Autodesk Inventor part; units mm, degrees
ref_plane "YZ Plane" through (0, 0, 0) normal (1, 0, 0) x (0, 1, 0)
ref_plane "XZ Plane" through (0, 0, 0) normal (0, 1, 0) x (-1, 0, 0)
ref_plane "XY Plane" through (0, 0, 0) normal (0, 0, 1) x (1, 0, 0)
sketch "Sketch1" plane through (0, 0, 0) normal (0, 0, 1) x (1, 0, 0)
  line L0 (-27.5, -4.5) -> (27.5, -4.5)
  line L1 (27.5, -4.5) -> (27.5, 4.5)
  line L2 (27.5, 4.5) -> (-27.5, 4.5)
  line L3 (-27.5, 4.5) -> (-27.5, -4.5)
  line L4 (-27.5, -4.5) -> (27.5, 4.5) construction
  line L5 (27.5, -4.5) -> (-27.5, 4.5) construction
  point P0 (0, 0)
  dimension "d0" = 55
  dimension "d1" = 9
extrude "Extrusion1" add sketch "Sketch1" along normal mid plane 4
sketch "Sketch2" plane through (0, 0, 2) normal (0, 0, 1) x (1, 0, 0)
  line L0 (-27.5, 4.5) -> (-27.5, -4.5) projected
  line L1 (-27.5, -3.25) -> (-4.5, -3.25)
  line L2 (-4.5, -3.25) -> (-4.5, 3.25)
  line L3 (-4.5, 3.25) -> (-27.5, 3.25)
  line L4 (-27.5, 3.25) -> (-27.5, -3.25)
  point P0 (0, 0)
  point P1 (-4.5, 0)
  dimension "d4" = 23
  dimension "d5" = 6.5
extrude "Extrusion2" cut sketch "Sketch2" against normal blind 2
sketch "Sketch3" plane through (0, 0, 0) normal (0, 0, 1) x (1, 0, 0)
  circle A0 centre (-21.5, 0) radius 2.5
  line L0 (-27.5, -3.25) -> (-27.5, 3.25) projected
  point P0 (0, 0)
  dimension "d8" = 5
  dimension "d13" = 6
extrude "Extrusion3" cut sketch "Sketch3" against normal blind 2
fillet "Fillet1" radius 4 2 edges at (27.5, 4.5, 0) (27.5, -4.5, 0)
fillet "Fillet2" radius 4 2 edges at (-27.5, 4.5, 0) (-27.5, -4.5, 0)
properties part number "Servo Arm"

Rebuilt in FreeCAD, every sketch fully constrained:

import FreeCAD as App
import Part
import Sketcher
from FreeCAD import Vector
Q = App.Units.Quantity


def edges_at(feature, points):
    """Names of the edges that pass closest to the given points."""
    edges = feature.Shape.Edges
    near = lambda p: min(range(len(edges)), key=lambda i: edges[i].distToShape(Part.Vertex(*p))[0])
    return sorted({f"Edge{near(p) + 1}" for p in points})


def add_polygon(sketch, points):
    """Adds a closed chain of lines whose ends are joined by coincident constraints."""
    first, n = sketch.GeometryCount, len(points)
    for a, b in zip(points, points[1:] + points[:1]):
        sketch.addGeometry(Part.LineSegment(App.Vector(*a, 0), App.Vector(*b, 0)), False)
    for i in range(n):
        sketch.addConstraint(Sketcher.Constraint("Coincident", first + i, 2, first + (i + 1) % n, 1))

doc = App.newDocument("Part")
body = doc.addObject("PartDesign::Body", "Body")

sketch1 = body.newObject("Sketcher::SketchObject", "Sketch")
sketch1.AttachmentSupport = (doc.getObject("XY_Plane"), [""])
sketch1.MapMode = "FlatFace"
add_polygon(sketch1, [(-28, 4), (-28, -4), (28, -4), (28, 4)])
sketch1.addConstraint(Sketcher.Constraint("Vertical", 0))
sketch1.addConstraint(Sketcher.Constraint("Horizontal", 1))
sketch1.addConstraint(Sketcher.Constraint("Vertical", 2))
sketch1.addConstraint(Sketcher.Constraint("Horizontal", 3))
sketch1.addConstraint(Sketcher.Constraint("Symmetric", 0, 2, 2, 2, -1, 1))
sketch1.addConstraint(Sketcher.Constraint("DistanceX", 1, 1, 1, 2, Q("55 mm")))
sketch1.addConstraint(Sketcher.Constraint("DistanceY", 0, 2, 0, 1, Q("9 mm")))
pad1 = body.newObject("PartDesign::Pad", "Pad")
pad1.Profile = sketch1
pad1.Length = 4
pad1.Midplane = True

sketch2 = body.newObject("Sketcher::SketchObject", "Sketch001")
sketch2.AttachmentSupport = (doc.getObject("XY_Plane"), [""])
sketch2.MapMode = "FlatFace"
sketch2.AttachmentOffset = App.Placement(Vector(0, 0, 2), App.Rotation())
add_polygon(sketch2, [(-4, 3), (-28, 3), (-28, -3), (-4, -3)])
sketch2.addConstraint(Sketcher.Constraint("Horizontal", 0))
sketch2.addConstraint(Sketcher.Constraint("Vertical", 1))
sketch2.addConstraint(Sketcher.Constraint("Horizontal", 2))
sketch2.addConstraint(Sketcher.Constraint("Vertical", 3))
sketch2.addConstraint(Sketcher.Constraint("DistanceX", 0, 2, 0, 1, Q("23 mm")))
sketch2.addConstraint(Sketcher.Constraint("DistanceY", 1, 2, 1, 1, Q("6.5 mm")))
sketch2.addConstraint(Sketcher.Constraint("DistanceX", 0, 2, -1, 1, Q("27.5 mm")))
sketch2.addConstraint(Sketcher.Constraint("DistanceY", -1, 1, 0, 2, Q("3.25 mm")))
pocket1 = body.newObject("PartDesign::Pocket", "Pocket")
pocket1.Profile = sketch2
pocket1.Length = 2

sketch3 = body.newObject("Sketcher::SketchObject", "Sketch002")
sketch3.AttachmentSupport = (doc.getObject("XY_Plane"), [""])
sketch3.MapMode = "FlatFace"
sketch3.addGeometry(Part.Circle(Vector(-21.5, 0, 0), Vector(0, 0, 1), 2.5), False)
sketch3.addConstraint(Sketcher.Constraint("PointOnObject", 0, 3, -1))
sketch3.addConstraint(Sketcher.Constraint("Diameter", 0, Q("5 mm")))
sketch3.addConstraint(Sketcher.Constraint("DistanceX", 0, 3, -1, 1, Q("21.5 mm")))
pocket2 = body.newObject("PartDesign::Pocket", "Pocket001")
pocket2.Profile = sketch3
pocket2.Length = 2
doc.recompute()

fillet = body.newObject("PartDesign::Fillet", "Fillet")
fillet.Base = (pocket2, edges_at(pocket2, [(27.5, 4.5, 0), (27.5, -4.5, 0)]))
fillet.Radius = 4
doc.recompute()

fillet2 = body.newObject("PartDesign::Fillet", "Fillet001")
fillet2.Base = (fillet, edges_at(fillet, [(-27.5, 4.5, 0), (-27.5, -4.5, 0)]))
fillet2.Radius = 4

doc.recompute()
